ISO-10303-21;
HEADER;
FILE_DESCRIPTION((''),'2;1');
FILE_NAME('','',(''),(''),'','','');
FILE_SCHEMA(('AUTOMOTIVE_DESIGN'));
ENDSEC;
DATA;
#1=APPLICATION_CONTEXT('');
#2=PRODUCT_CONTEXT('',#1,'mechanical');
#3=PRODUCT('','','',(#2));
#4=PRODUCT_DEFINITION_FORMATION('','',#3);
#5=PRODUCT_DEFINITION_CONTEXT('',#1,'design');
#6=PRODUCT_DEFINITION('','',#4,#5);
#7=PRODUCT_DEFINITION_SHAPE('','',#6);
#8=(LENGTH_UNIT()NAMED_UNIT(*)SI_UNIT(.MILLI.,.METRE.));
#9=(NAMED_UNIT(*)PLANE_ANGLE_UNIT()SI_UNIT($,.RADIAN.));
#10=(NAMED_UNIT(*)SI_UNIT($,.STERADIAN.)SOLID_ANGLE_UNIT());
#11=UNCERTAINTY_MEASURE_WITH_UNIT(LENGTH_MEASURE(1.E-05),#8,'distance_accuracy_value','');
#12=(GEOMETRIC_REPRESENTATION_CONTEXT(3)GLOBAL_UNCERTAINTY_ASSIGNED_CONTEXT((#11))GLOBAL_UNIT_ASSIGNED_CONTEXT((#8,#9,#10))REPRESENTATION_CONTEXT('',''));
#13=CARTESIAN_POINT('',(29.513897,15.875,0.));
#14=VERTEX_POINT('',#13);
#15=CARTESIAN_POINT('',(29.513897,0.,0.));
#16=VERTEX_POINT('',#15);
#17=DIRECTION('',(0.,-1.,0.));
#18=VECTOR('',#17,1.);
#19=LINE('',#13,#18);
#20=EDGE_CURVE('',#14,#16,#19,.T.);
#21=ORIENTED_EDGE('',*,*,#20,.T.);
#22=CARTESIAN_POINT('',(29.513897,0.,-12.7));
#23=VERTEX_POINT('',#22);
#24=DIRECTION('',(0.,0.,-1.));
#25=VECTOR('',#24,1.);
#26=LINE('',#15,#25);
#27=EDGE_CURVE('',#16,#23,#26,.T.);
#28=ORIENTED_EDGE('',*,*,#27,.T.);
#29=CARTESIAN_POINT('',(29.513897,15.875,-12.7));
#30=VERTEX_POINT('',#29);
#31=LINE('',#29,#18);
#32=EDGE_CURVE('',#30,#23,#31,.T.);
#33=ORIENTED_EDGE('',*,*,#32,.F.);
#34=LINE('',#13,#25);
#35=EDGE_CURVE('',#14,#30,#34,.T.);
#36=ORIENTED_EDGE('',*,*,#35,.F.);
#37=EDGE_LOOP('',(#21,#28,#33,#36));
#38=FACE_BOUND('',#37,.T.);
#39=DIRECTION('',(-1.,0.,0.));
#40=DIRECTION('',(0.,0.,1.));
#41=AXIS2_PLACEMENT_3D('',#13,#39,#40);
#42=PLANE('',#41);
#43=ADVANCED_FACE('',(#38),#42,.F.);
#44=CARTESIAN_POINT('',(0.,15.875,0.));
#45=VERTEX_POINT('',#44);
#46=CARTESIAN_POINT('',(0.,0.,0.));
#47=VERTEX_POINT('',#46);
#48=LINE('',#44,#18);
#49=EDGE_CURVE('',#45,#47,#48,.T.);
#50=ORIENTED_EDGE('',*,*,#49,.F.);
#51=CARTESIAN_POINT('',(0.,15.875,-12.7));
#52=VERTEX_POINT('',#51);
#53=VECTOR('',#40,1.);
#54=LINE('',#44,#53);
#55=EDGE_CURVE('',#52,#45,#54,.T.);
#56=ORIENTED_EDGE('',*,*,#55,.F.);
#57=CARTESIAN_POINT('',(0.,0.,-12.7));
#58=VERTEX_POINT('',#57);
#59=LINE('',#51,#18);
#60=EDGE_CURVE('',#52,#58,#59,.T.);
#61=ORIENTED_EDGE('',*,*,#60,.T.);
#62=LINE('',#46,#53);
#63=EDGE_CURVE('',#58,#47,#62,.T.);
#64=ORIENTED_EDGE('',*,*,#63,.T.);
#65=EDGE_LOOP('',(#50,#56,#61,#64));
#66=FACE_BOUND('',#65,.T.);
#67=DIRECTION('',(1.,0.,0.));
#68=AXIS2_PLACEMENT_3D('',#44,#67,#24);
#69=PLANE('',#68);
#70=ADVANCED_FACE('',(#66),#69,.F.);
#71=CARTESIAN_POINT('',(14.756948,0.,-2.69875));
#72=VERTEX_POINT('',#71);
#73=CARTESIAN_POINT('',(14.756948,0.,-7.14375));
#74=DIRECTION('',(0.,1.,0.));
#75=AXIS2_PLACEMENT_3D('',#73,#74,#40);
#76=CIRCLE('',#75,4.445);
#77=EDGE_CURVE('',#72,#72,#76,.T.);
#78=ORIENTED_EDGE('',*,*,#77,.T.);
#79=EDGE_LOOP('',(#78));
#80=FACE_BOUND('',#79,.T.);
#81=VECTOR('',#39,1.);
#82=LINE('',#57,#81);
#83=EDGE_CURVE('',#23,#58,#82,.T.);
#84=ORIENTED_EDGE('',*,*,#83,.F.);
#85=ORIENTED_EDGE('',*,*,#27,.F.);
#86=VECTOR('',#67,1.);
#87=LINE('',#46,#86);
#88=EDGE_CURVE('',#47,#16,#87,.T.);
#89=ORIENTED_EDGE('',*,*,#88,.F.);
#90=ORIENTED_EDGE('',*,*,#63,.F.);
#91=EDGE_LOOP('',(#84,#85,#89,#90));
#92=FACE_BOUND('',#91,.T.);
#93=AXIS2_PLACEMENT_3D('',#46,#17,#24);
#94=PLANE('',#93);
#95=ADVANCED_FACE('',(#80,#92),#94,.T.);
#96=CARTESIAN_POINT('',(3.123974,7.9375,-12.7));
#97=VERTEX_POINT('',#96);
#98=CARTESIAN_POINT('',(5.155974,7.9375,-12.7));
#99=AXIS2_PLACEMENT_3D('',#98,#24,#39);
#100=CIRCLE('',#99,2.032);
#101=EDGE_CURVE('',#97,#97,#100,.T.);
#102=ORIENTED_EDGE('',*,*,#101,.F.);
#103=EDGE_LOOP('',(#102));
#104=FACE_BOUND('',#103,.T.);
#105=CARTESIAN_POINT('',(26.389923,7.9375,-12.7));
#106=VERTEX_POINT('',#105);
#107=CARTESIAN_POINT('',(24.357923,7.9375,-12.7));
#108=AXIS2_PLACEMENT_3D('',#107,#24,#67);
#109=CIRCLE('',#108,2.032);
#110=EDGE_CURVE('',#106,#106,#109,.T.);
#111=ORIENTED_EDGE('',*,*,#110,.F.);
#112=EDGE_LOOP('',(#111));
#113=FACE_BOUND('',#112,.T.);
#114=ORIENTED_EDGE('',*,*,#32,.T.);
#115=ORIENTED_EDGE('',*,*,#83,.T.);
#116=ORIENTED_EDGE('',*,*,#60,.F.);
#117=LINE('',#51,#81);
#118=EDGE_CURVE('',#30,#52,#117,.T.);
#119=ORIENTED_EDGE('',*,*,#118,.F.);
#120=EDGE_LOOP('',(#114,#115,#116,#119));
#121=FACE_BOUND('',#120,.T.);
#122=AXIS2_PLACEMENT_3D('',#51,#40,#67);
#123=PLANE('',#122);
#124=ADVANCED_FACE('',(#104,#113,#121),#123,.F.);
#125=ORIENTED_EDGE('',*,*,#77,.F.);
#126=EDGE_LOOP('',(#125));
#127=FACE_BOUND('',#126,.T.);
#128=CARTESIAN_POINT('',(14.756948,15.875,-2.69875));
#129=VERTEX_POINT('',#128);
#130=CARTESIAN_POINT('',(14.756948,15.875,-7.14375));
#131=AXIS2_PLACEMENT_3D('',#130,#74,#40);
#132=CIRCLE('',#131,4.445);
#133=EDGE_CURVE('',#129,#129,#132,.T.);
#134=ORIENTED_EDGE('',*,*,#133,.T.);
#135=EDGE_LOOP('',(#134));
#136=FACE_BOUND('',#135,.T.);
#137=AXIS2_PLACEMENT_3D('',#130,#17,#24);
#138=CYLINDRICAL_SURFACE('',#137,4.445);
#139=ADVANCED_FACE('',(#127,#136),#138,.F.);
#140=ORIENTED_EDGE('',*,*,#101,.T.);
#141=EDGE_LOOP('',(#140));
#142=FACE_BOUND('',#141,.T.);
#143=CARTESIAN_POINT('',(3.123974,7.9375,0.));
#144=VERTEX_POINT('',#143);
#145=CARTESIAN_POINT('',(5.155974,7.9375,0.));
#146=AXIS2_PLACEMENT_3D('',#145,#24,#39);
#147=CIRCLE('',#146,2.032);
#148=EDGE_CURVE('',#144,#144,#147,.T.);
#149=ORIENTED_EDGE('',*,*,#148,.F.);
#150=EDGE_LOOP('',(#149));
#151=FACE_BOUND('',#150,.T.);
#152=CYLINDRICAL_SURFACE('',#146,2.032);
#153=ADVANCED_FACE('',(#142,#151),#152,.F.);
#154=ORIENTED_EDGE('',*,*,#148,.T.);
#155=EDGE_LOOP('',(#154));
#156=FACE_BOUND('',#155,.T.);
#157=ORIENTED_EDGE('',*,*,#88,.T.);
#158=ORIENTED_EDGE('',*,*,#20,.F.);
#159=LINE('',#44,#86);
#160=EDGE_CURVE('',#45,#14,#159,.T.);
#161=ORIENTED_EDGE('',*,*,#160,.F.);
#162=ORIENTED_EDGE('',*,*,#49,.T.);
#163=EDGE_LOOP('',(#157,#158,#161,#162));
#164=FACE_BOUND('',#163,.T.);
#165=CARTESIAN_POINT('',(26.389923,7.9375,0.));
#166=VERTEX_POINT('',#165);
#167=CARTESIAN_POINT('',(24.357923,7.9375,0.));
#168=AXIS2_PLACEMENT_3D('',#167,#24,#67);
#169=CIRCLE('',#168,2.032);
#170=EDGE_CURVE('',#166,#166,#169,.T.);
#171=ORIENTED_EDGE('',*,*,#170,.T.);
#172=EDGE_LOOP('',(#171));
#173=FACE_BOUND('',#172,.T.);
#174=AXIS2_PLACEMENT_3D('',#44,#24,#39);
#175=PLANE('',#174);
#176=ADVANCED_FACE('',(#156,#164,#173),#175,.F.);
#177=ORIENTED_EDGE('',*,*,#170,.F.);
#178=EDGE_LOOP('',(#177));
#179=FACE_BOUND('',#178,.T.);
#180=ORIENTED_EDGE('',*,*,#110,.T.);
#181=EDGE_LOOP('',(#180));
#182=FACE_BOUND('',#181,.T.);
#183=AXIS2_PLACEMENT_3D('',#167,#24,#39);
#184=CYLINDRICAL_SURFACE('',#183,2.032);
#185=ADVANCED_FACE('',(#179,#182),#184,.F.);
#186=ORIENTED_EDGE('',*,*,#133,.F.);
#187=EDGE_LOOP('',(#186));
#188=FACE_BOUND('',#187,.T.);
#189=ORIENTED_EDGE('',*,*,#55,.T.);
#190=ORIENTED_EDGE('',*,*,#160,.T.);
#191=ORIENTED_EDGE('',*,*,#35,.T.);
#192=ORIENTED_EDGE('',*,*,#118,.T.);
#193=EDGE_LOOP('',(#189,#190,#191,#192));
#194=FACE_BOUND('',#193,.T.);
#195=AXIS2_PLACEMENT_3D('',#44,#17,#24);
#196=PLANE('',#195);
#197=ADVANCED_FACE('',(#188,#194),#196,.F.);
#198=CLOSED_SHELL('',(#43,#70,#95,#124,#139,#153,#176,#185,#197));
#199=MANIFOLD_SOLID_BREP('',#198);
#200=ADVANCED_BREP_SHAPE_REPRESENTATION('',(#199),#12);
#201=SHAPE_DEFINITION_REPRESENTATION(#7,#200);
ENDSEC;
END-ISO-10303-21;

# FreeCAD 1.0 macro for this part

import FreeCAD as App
import Part
import Sketcher

V = App.Vector
Q = App.Units.Quantity

doc = App.newDocument("Part")
body = doc.addObject("PartDesign::Body", "Body")

sketch1 = body.newObject("Sketcher::SketchObject", "Sketch")
sketch1.AttachmentSupport = (doc.getObject("XZ_Plane"), [""])
sketch1.MapMode = "FlatFace"
sketch1.addGeometry([
    Part.LineSegment(V(0, -12.7, 0), V(0, 0, 0)),
    Part.LineSegment(V(0, 0, 0), V(29.5, 0, 0)),
    Part.LineSegment(V(29.5, 0, 0), V(29.5, -12.7, 0)),
    Part.LineSegment(V(29.5, -12.7, 0), V(0, -12.7, 0)),
    Part.Circle(V(14.8, -7.1, 0), V(0, 0, 1), 4.4),
], False)
sketch1.addConstraint([
    Sketcher.Constraint("Coincident", 0, 2, 1, 1),
    Sketcher.Constraint("Coincident", 1, 2, 2, 1),
    Sketcher.Constraint("Coincident", 2, 2, 3, 1),
    Sketcher.Constraint("Coincident", 3, 2, 0, 1),
    Sketcher.Constraint("Vertical", 0),
    Sketcher.Constraint("Horizontal", 1),
    Sketcher.Constraint("Vertical", 2),
    Sketcher.Constraint("Horizontal", 3),
    Sketcher.Constraint("Coincident", 0, 2, -1, 1),
    Sketcher.Constraint("Diameter", 4, Q("0.35 in")),
    Sketcher.Constraint("DistanceY", 0, 1, 0, 2, Q("0.5 in")),
    Sketcher.Constraint("DistanceY", 4, 3, -1, 1, Q("0.28125 in")),
    Sketcher.Constraint("DistanceX", 1, 1, 1, 2, 29.513897),
    Sketcher.Constraint("DistanceX", -1, 1, 4, 3, 14.756948),
])
pad1 = body.newObject("PartDesign::Pad", "Pad")
pad1.Profile = sketch1
pad1.Length = Q("0.625 in")
pad1.Reversed = True

sketch2 = body.newObject("Sketcher::SketchObject", "Sketch001")
sketch2.AttachmentSupport = (doc.getObject("XY_Plane"), [""])
sketch2.MapMode = "FlatFace"
sketch2.AttachmentOffset = App.Placement(V(0, 0, -0.5 * 25.4), App.Rotation())
sketch2.addGeometry([
    Part.Circle(V(5.2, 7.9, 0), V(0, 0, 1), 2),
    Part.Circle(V(24.4, 7.9, 0), V(0, 0, 1), 2),
], False)
sketch2.addConstraint([
    Sketcher.Constraint("Equal", 0, 1),
    Sketcher.Constraint("Horizontal", 0, 3, 1, 3),
    Sketcher.Constraint("Diameter", 0, Q("0.16 in")),
    Sketcher.Constraint("DistanceY", -1, 1, 0, 3, Q("0.3125 in")),
    Sketcher.Constraint("DistanceX", 0, 3, 1, 3, 19.201948),
    Sketcher.Constraint("DistanceX", -1, 1, 0, 3, 5.155974),
])
pocket1 = body.newObject("PartDesign::Pocket", "Pocket")
pocket1.Profile = sketch2
pocket1.Length = Q("0.5 in")
pocket1.Reversed = True

doc.recompute()
